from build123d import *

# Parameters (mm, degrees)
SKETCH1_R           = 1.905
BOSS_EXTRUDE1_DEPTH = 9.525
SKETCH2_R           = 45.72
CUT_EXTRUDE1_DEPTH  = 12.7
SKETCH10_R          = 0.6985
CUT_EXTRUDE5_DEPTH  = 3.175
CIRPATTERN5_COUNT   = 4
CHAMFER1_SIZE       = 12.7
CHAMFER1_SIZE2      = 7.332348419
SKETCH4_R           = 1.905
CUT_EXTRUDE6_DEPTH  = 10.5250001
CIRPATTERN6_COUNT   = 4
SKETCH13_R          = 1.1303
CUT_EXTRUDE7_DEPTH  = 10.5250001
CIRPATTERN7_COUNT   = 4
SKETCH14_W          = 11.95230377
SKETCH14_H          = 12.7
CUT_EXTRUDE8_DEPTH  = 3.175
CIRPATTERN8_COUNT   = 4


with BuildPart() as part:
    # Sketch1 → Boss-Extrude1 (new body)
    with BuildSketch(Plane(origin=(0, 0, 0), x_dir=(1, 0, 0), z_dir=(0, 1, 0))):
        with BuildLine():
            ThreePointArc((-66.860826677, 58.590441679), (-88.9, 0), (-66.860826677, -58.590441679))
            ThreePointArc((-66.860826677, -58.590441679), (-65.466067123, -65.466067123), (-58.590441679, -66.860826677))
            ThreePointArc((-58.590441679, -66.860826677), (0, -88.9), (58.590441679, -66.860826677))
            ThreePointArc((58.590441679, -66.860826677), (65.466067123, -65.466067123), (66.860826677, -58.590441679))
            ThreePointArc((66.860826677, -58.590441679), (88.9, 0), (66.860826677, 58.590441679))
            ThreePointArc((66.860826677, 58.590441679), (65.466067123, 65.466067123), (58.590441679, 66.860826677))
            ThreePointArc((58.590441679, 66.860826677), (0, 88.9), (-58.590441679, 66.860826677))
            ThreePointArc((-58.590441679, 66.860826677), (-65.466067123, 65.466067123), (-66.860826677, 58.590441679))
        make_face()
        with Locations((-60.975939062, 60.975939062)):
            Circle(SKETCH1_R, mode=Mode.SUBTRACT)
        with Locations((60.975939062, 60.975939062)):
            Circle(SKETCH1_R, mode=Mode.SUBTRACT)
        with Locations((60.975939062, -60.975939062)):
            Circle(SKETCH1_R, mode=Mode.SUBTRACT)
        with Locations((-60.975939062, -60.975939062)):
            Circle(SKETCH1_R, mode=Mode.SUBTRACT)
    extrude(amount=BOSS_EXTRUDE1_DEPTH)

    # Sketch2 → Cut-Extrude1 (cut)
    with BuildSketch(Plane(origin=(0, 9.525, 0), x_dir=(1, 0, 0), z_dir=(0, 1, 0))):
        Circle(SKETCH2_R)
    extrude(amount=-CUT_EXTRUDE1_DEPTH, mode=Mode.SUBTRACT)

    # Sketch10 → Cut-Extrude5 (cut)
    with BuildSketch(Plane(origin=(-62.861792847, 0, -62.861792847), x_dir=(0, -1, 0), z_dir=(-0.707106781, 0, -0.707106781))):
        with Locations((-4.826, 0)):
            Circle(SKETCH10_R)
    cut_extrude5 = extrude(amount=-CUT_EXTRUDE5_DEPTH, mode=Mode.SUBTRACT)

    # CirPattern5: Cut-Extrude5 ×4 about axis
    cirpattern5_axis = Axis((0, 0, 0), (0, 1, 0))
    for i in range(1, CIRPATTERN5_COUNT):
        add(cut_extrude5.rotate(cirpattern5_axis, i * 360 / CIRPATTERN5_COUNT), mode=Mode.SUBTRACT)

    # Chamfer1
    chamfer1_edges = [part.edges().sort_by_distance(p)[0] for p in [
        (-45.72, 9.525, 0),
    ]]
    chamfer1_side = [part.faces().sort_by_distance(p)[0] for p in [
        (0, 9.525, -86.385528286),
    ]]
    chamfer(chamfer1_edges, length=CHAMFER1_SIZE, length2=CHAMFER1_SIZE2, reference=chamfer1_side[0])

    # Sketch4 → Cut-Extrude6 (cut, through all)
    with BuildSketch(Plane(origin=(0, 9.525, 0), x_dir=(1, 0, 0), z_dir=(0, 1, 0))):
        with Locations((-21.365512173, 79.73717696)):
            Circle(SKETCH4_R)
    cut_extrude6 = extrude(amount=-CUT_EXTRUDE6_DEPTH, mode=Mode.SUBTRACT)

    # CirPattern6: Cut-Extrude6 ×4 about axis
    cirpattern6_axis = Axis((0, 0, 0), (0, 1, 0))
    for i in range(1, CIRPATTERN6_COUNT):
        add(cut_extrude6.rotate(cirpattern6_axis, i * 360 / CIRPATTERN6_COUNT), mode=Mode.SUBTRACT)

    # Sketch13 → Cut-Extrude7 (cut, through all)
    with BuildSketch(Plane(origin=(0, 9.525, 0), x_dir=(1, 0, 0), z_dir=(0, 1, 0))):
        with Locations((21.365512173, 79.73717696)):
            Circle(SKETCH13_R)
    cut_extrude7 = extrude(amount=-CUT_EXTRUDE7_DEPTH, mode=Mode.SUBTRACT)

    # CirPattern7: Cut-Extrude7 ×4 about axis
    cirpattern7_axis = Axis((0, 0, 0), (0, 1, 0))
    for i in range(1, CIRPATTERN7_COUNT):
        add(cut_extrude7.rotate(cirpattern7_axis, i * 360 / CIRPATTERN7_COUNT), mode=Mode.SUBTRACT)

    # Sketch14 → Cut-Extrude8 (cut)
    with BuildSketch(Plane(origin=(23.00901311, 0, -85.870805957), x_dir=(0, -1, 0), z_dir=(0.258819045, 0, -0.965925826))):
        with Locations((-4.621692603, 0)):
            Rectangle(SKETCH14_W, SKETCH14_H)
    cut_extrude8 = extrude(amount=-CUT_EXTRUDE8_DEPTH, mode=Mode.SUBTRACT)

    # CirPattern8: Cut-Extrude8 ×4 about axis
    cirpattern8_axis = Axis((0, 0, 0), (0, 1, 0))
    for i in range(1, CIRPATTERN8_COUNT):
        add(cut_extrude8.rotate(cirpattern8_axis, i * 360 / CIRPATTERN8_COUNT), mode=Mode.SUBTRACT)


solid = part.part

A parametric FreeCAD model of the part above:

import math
import FreeCAD as App
import Part
import Sketcher
Q = App.Units.Quantity


def edges_at(feature, points):
    """Names of the edges that pass closest to the given points."""
    edges = feature.Shape.Edges
    near = lambda p: min(range(len(edges)), key=lambda i: edges[i].distToShape(Part.Vertex(*p))[0])
    return sorted({f"Edge{near(p) + 1}" for p in points})

doc = App.newDocument("Part")
body = doc.addObject("PartDesign::Body", "Body")

# Sketch on XZ plane
sketch1 = doc.addObject("Sketcher::SketchObject", "Sketch")
body.addObject(sketch1)
sketch1.AttachmentSupport = (doc.XZ_Plane, [""])
sketch1.MapMode = "FlatFace"
sketch1.addGeometry([
    Part.ArcOfCircle(Part.Circle(App.Vector(0, 0, 0), App.Vector(0, 0, 1), 88.9), math.radians(139), math.radians(221)),  # 0
    Part.ArcOfCircle(Part.Circle(App.Vector(-61, 61, 0), App.Vector(0, 0, 1), 6.3), math.radians(68), math.radians(202)),  # 1
    Part.ArcOfCircle(Part.Circle(App.Vector(0, 0, 0), App.Vector(0, 0, 1), 88.9), math.radians(49), math.radians(131)),  # 2
    Part.ArcOfCircle(Part.Circle(App.Vector(61, 61, 0), App.Vector(0, 0, 1), 6.3), math.radians(-22), math.radians(112)),  # 3
    Part.ArcOfCircle(Part.Circle(App.Vector(0, 0, 0), App.Vector(0, 0, 1), 88.9), math.radians(-41), math.radians(41)),  # 4
    Part.ArcOfCircle(Part.Circle(App.Vector(61, -61, 0), App.Vector(0, 0, 1), 6.3), math.radians(-112), math.radians(22)),  # 5
    Part.ArcOfCircle(Part.Circle(App.Vector(0, 0, 0), App.Vector(0, 0, 1), 88.9), math.radians(-131), math.radians(-49)),  # 6
    Part.ArcOfCircle(Part.Circle(App.Vector(-61, -61, 0), App.Vector(0, 0, 1), 6.3), math.radians(158), math.radians(292)),  # 7
    Part.Circle(App.Vector(-61, 61, 0), App.Vector(0, 0, 1), 1.9),  # 8
    Part.Circle(App.Vector(61, 61, 0), App.Vector(0, 0, 1), 1.9),  # 9
    Part.Circle(App.Vector(-61, -61, 0), App.Vector(0, 0, 1), 1.9),  # 10
    Part.Circle(App.Vector(61, -61, 0), App.Vector(0, 0, 1), 1.9),  # 11
], False)
sketch1.addConstraint([
    Sketcher.Constraint("Coincident", 0, 1, 1, 2),
    Sketcher.Constraint("Coincident", 1, 1, 2, 2),
    Sketcher.Constraint("Coincident", 2, 1, 3, 2),
    Sketcher.Constraint("Coincident", 3, 1, 4, 2),
    Sketcher.Constraint("Coincident", 4, 1, 5, 2),
    Sketcher.Constraint("Coincident", 5, 1, 6, 2),
    Sketcher.Constraint("Coincident", 6, 1, 7, 2),
    Sketcher.Constraint("Coincident", 7, 1, 0, 2),
    Sketcher.Constraint("Coincident", 0, 3, -1, 1),
    Sketcher.Constraint("Coincident", 2, 3, -1, 1),
    Sketcher.Constraint("Coincident", 4, 3, -1, 1),
    Sketcher.Constraint("Coincident", 6, 3, -1, 1),
    Sketcher.Constraint("Coincident", 8, 3, 1, 3),
    Sketcher.Constraint("Coincident", 9, 3, 3, 3),
    Sketcher.Constraint("Coincident", 10, 3, 7, 3),
    Sketcher.Constraint("Coincident", 11, 3, 5, 3),
    Sketcher.Constraint("Equal", 0, 2),
    Sketcher.Constraint("Equal", 1, 3),
    Sketcher.Constraint("Equal", 2, 4),
    Sketcher.Constraint("Equal", 3, 5),
    Sketcher.Constraint("Equal", 4, 6),
    Sketcher.Constraint("Equal", 5, 7),
    Sketcher.Constraint("Equal", 8, 9),
    Sketcher.Constraint("Equal", 9, 10),
    Sketcher.Constraint("Equal", 10, 11),
    Sketcher.Constraint("Symmetric", 1, 3, 5, 3, -1, 1),
    Sketcher.Constraint("Symmetric", 3, 3, 7, 3, -1, 1),
    Sketcher.Constraint("Symmetric", 1, 3, 3, 3, -2),
    Sketcher.Constraint("Radius", 0, Q("3.5 in")),
    Sketcher.Constraint("Diameter", 8, Q("0.15 in")),
    Sketcher.Constraint("Radius", 1, Q("0.25 in")),
    Sketcher.Constraint("DistanceX", 1, 3, -1, 1, Q("60.975939 mm")),
    Sketcher.Constraint("DistanceY", -1, 1, 1, 3, Q("60.975939 mm")),
])
pad1 = doc.addObject("PartDesign::Pad", "Pad")
body.addObject(pad1)
pad1.Profile = sketch1
pad1.Length = Q("0.375 in")
pad1.Reversed = True

# Sketch on XZ plane
sketch2 = doc.addObject("Sketcher::SketchObject", "Sketch001")
body.addObject(sketch2)
sketch2.AttachmentSupport = (doc.XZ_Plane, [""])
sketch2.MapMode = "FlatFace"
sketch2.AttachmentOffset = App.Placement(App.Vector(0, 0, -0.375 * 25.4), App.Rotation())
sketch2.addGeometry(Part.Circle(App.Vector(0, 0, 0), App.Vector(0, 0, 1), 46), False)
sketch2.addConstraint([
    Sketcher.Constraint("Coincident", 0, 3, -1, 1),
    Sketcher.Constraint("Diameter", 0, Q("3.6 in")),
])
pocket1 = doc.addObject("PartDesign::Pocket", "Pocket")
body.addObject(pocket1)
pocket1.Profile = sketch2
pocket1.Length = Q("0.5 in")
pocket1.Reversed = True

# Sketch on an angled plane
sketch3 = doc.addObject("Sketcher::SketchObject", "Sketch002")
body.addObject(sketch3)
sketch3.Placement = App.Placement(App.Vector(-62.861793, 0, -62.861793), App.Rotation(App.Vector(0, -1, 0), App.Vector(-0.707106781, 0, 0.707106781), App.Vector(-0.707106781, 0, -0.707106781), "ZXY"))
sketch3.addGeometry(Part.Circle(App.Vector(-4.8, 0, 0), App.Vector(0, 0, 1), 0.7), False)
sketch3.addConstraint([
    Sketcher.Constraint("PointOnObject", 0, 3, -1),
    Sketcher.Constraint("Diameter", 0, Q("0.055 in")),
    Sketcher.Constraint("DistanceX", 0, 3, -1, 1, Q("0.19 in")),
])
pocket2 = doc.addObject("PartDesign::Pocket", "Pocket001")
body.addObject(pocket2)
pocket2.Profile = sketch3
pocket2.Length = Q("0.125 in")
doc.recompute()

polarpattern = doc.addObject("PartDesign::PolarPattern", "PolarPattern")
body.addObject(polarpattern)
polarpattern.Originals = [pocket2]
polarpattern.Axis = (doc.Y_Axis, [""])
polarpattern.Angle = 360
polarpattern.Occurrences = 4
body.Tip = polarpattern
doc.recompute()

chamfer = doc.addObject("PartDesign::Chamfer", "Chamfer")
body.addObject(chamfer)
chamfer.Base = (polarpattern, edges_at(polarpattern, [(-45.72, 9.525, 0)]))
chamfer.ChamferType = "Two distances"
chamfer.Size = Q("0.5 in")
chamfer.Size2 = 7.332348

# Sketch on XZ plane
sketch4 = doc.addObject("Sketcher::SketchObject", "Sketch003")
body.addObject(sketch4)
sketch4.AttachmentSupport = (doc.XZ_Plane, [""])
sketch4.MapMode = "FlatFace"
sketch4.AttachmentOffset = App.Placement(App.Vector(0, 0, -0.375 * 25.4), App.Rotation())
sketch4.addGeometry(Part.Circle(App.Vector(-21.4, -79.7, 0), App.Vector(0, 0, 1), 1.9), False)
sketch4.addConstraint([
    Sketcher.Constraint("Diameter", 0, Q("0.15 in")),
    Sketcher.Constraint("DistanceX", 0, 3, -1, 1, Q("21.365512 mm")),
    Sketcher.Constraint("DistanceY", 0, 3, -1, 1, Q("79.737177 mm")),
])
pocket3 = doc.addObject("PartDesign::Pocket", "Pocket002")
body.addObject(pocket3)
pocket3.Profile = sketch4
pocket3.Type = "ThroughAll"
pocket3.Reversed = True
doc.recompute()

polarpattern2 = doc.addObject("PartDesign::PolarPattern", "PolarPattern001")
body.addObject(polarpattern2)
polarpattern2.Originals = [pocket3]
polarpattern2.Axis = (doc.Y_Axis, [""])
polarpattern2.Angle = 360
polarpattern2.Occurrences = 4
body.Tip = polarpattern2

# Sketch on XZ plane
sketch5 = doc.addObject("Sketcher::SketchObject", "Sketch004")
body.addObject(sketch5)
sketch5.AttachmentSupport = (doc.XZ_Plane, [""])
sketch5.MapMode = "FlatFace"
sketch5.AttachmentOffset = App.Placement(App.Vector(0, 0, -0.375 * 25.4), App.Rotation())
sketch5.addGeometry(Part.Circle(App.Vector(21.4, -79.7, 0), App.Vector(0, 0, 1), 1.1), False)
sketch5.addConstraint([
    Sketcher.Constraint("Diameter", 0, Q("0.089 in")),
    Sketcher.Constraint("DistanceX", -1, 1, 0, 3, Q("21.365512 mm")),
    Sketcher.Constraint("DistanceY", 0, 3, -1, 1, Q("79.737177 mm")),
])
pocket4 = doc.addObject("PartDesign::Pocket", "Pocket003")
body.addObject(pocket4)
pocket4.Profile = sketch5
pocket4.Type = "ThroughAll"
pocket4.Reversed = True
doc.recompute()

polarpattern3 = doc.addObject("PartDesign::PolarPattern", "PolarPattern002")
body.addObject(polarpattern3)
polarpattern3.Originals = [pocket4]
polarpattern3.Axis = (doc.Y_Axis, [""])
polarpattern3.Angle = 360
polarpattern3.Occurrences = 4
body.Tip = polarpattern3

# Sketch on an angled plane
sketch6 = doc.addObject("Sketcher::SketchObject", "Sketch005")
body.addObject(sketch6)
sketch6.Placement = App.Placement(App.Vector(23.009013, 0, -85.870806), App.Rotation(App.Vector(0, -1, 0), App.Vector(-0.965925826, 0, -0.258819045), App.Vector(0.258819045, 0, -0.965925826), "ZXY"))
sketch6.addGeometry([
    Part.LineSegment(App.Vector(-11, 6, 0), App.Vector(-11, -6, 0)),
    Part.LineSegment(App.Vector(-11, -6, 0), App.Vector(1, -6, 0)),
    Part.LineSegment(App.Vector(1, -6, 0), App.Vector(1, 6, 0)),
    Part.LineSegment(App.Vector(1, 6, 0), App.Vector(-11, 6, 0)),
], False)
sketch6.addConstraint([
    Sketcher.Constraint("Coincident", 0, 2, 1, 1),
    Sketcher.Constraint("Coincident", 1, 2, 2, 1),
    Sketcher.Constraint("Coincident", 2, 2, 3, 1),
    Sketcher.Constraint("Coincident", 3, 2, 0, 1),
    Sketcher.Constraint("Vertical", 0),
    Sketcher.Constraint("Horizontal", 1),
    Sketcher.Constraint("Vertical", 2),
    Sketcher.Constraint("Horizontal", 3),
    Sketcher.Constraint("DistanceY", 0, 2, 0, 1, Q("0.5 in")),
    Sketcher.Constraint("DistanceY", 0, 2, -1, 1, Q("0.25 in")),
    Sketcher.Constraint("DistanceX", 1, 1, 1, 2, Q("11.952304 mm")),
    Sketcher.Constraint("DistanceX", -1, 1, 1, 2, Q("1.354459 mm")),
])
pocket5 = doc.addObject("PartDesign::Pocket", "Pocket004")
body.addObject(pocket5)
pocket5.Profile = sketch6
pocket5.Length = Q("0.125 in")
doc.recompute()

polarpattern4 = doc.addObject("PartDesign::PolarPattern", "PolarPattern003")
body.addObject(polarpattern4)
polarpattern4.Originals = [pocket5]
polarpattern4.Axis = (doc.Y_Axis, [""])
polarpattern4.Angle = 360
polarpattern4.Occurrences = 4
body.Tip = polarpattern4

doc.recompute()
